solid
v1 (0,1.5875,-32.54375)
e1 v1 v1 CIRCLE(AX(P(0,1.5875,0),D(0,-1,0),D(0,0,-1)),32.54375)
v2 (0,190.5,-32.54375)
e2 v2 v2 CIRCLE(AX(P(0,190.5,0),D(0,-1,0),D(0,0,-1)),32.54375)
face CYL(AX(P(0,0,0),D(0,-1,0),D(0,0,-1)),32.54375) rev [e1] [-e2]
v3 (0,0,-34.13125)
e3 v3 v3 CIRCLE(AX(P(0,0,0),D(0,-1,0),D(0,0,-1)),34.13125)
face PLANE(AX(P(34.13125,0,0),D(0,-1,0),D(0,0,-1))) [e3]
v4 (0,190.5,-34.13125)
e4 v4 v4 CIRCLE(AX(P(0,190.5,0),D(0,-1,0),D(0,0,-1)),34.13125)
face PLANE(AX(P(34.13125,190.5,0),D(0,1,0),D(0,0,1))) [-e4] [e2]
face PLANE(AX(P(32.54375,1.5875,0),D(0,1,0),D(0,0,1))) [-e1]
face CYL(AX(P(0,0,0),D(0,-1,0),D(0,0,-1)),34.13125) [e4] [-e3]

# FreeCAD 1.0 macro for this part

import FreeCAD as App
import Part
import Sketcher

V = App.Vector
Q = App.Units.Quantity


def add_polygon(sketch, points):
    """Adds a closed chain of lines whose ends are joined by coincident constraints."""
    first, n = sketch.GeometryCount, len(points)
    for a, b in zip(points, points[1:] + points[:1]):
        sketch.addGeometry(Part.LineSegment(App.Vector(*a, 0), App.Vector(*b, 0)), False)
    for i in range(n):
        sketch.addConstraint(Sketcher.Constraint("Coincident", first + i, 2, first + (i + 1) % n, 1))

doc = App.newDocument("Part")
params = doc.addObject("Spreadsheet::Sheet", "Params")
for row, (alias, value) in enumerate([
    ("sketch1_height", "7.5 in"),
    ("sketch1_width", "0.0625 in"),
    ("sketch1_width2", "1.28125 in"),
    ("revolution_angle", "360 deg"),
], start=1):
    params.set(f"A{row}", alias)
    params.set(f"B{row}", "=" + value)
    params.setAlias(f"B{row}", alias)

body = doc.addObject("PartDesign::Body", "Body")

# Sketch on XY plane
sketch1 = doc.addObject("Sketcher::SketchObject", "Sketch")
body.addObject(sketch1)
sketch1.AttachmentSupport = (doc.XY_Plane, [""])
sketch1.MapMode = "FlatFace"
add_polygon(sketch1, [(34.1, 0), (34.1, 190.5), (32.5, 190.5), (32.5, 1.6), (0, 1.6), (0, 0)])  # lines 0-5
sketch1.addConstraint(Sketcher.Constraint("Vertical", 0))
sketch1.addConstraint(Sketcher.Constraint("Horizontal", 1))
sketch1.addConstraint(Sketcher.Constraint("Vertical", 2))
sketch1.addConstraint(Sketcher.Constraint("Horizontal", 3))
sketch1.addConstraint(Sketcher.Constraint("Vertical", 4))
sketch1.addConstraint(Sketcher.Constraint("Horizontal", 5))
sketch1.addConstraint(Sketcher.Constraint("Coincident", 4, 2, -1, 1))
sketch1.addConstraint(Sketcher.Constraint("Equal", 1, 4))
sketch1.addConstraint(Sketcher.Constraint("DistanceY", 0, 1, 0, 2, Q("7.5 in")))
sketch1.addConstraint(Sketcher.Constraint("DistanceX", 1, 2, 1, 1, Q("0.0625 in")))
sketch1.addConstraint(Sketcher.Constraint("DistanceX", 3, 2, 3, 1, Q("1.28125 in")))
sketch1.setExpression("Constraints[14]", "Params.sketch1_height")
sketch1.setExpression("Constraints[15]", "Params.sketch1_width")
sketch1.setExpression("Constraints[16]", "Params.sketch1_width2")
revolution = doc.addObject("PartDesign::Revolution", "Revolution")
body.addObject(revolution)
revolution.Profile = sketch1
revolution.ReferenceAxis = (sketch1, ["V_Axis"])
revolution.setExpression("Angle", "Params.revolution_angle")

doc.recompute()
